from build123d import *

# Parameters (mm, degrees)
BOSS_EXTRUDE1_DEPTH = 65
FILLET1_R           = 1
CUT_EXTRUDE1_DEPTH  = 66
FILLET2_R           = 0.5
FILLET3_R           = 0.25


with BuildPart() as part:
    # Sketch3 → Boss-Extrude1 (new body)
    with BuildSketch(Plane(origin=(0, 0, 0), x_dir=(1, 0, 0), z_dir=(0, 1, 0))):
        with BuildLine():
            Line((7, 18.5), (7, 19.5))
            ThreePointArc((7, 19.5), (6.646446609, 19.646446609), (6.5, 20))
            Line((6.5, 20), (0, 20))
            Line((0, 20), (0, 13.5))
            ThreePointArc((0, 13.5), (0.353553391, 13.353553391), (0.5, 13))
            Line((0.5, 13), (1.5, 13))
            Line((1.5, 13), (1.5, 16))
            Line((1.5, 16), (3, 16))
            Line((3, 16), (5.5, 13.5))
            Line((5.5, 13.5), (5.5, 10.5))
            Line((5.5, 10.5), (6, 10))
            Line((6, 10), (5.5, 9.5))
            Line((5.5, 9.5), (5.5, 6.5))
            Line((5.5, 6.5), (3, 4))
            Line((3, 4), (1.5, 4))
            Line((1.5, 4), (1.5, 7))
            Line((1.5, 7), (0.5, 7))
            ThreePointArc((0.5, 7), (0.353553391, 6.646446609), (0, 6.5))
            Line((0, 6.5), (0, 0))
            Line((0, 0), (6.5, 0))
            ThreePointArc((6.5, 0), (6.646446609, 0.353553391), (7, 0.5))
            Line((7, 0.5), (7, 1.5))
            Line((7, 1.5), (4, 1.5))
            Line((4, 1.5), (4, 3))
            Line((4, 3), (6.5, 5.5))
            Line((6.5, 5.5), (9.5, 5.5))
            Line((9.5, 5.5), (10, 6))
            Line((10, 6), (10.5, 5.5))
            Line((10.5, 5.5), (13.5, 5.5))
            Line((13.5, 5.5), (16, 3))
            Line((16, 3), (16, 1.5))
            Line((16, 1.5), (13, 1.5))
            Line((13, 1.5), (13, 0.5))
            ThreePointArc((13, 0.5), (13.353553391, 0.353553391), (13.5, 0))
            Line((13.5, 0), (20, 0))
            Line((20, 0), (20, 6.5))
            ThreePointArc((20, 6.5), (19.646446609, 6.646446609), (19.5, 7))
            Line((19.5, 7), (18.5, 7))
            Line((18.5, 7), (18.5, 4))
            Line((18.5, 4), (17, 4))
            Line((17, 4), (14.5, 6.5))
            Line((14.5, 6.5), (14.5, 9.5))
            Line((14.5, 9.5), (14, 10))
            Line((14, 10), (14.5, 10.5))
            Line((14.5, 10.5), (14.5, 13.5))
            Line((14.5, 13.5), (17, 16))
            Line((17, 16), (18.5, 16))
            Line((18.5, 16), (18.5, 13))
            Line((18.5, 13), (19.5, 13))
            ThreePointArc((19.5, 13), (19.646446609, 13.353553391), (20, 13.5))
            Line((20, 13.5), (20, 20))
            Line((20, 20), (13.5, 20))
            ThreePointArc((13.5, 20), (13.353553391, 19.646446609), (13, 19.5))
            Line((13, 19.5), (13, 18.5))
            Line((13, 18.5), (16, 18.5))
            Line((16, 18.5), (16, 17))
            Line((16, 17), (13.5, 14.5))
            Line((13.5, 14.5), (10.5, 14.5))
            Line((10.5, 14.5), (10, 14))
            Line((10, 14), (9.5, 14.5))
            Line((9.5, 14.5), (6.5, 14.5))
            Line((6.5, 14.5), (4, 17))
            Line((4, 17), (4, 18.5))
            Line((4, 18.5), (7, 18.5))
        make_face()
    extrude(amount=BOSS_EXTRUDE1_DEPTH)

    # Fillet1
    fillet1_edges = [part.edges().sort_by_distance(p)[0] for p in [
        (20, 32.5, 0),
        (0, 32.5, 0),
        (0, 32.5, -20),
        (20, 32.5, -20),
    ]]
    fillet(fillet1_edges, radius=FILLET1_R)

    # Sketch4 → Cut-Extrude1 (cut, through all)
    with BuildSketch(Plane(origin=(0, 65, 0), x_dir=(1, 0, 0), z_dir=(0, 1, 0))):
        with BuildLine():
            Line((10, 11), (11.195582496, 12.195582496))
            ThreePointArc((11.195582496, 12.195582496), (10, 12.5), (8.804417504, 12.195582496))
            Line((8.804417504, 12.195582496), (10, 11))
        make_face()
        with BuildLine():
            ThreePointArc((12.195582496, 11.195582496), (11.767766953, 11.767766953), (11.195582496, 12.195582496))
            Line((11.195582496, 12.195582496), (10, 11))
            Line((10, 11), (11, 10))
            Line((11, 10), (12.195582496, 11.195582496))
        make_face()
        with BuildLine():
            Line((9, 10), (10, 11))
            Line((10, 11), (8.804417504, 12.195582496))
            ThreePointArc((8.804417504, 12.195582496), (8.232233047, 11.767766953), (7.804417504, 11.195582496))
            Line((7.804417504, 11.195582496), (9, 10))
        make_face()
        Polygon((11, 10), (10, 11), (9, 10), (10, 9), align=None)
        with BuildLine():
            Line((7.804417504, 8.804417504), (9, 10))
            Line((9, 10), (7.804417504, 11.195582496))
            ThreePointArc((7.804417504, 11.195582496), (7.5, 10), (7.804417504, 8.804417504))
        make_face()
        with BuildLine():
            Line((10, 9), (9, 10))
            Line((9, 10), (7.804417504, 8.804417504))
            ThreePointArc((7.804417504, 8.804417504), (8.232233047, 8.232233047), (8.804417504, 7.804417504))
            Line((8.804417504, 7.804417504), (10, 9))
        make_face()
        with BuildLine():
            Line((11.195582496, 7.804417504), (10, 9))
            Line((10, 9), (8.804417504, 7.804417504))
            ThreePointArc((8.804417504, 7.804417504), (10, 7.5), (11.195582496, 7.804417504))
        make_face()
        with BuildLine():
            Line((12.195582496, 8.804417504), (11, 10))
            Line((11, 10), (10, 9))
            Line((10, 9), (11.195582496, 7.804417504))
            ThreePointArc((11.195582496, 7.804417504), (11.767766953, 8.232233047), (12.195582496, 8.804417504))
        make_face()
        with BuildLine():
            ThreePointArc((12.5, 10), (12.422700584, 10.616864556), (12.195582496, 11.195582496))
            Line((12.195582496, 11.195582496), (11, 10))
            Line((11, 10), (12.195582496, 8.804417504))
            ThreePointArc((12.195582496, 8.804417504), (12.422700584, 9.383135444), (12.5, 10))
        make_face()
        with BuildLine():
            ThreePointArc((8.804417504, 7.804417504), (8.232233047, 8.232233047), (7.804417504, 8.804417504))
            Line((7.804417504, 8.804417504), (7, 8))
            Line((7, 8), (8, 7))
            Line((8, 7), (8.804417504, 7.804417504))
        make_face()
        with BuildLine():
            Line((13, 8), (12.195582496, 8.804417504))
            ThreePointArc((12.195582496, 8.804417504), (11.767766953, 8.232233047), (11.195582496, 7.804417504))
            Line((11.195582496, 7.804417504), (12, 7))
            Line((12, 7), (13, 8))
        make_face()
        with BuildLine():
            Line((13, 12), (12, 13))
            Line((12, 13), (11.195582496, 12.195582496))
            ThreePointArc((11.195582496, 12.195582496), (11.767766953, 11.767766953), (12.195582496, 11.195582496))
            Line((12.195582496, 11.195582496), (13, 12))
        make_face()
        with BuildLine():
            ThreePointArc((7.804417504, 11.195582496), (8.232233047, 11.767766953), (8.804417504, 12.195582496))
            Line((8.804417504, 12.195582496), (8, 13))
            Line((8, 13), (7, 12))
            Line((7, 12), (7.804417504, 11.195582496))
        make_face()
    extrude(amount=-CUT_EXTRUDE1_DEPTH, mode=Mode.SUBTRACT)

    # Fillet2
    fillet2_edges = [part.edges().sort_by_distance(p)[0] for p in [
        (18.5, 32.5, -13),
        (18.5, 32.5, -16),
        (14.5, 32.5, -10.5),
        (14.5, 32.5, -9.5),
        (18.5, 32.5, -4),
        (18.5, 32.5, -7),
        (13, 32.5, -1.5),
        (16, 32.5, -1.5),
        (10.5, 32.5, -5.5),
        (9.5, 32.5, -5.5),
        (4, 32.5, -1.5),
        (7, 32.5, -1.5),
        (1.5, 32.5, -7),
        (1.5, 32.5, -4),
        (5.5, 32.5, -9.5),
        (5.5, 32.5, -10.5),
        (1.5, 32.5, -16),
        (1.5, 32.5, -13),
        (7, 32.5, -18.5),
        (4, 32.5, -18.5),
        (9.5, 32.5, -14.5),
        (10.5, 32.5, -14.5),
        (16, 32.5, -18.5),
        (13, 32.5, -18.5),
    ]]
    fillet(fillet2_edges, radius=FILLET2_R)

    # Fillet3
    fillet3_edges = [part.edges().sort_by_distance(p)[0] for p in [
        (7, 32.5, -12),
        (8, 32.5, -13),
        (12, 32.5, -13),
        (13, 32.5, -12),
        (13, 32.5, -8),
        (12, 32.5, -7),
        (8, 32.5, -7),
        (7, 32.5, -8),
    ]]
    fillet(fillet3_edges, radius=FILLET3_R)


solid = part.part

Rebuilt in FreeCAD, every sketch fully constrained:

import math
import FreeCAD as App
import Part
import Sketcher
from FreeCAD import Vector


def edges_at(feature, points):
    """Names of the edges that pass closest to the given points."""
    edges = feature.Shape.Edges
    near = lambda p: min(range(len(edges)), key=lambda i: edges[i].distToShape(Part.Vertex(*p))[0])
    return sorted({f"Edge{near(p) + 1}" for p in points})

doc = App.newDocument("Part")
params = doc.addObject("Spreadsheet::Sheet", "Params")
for row, (alias, value) in enumerate([
    ("sketch1_radius", "0.5 mm"),
    ("sketch1_width", "1 mm"),
    ("sketch1_width2", "3 mm"),
    ("sketch1_width3", "6.5 mm"),
    ("sketch1_width4", "1.5 mm"),
    ("pad1_length", "65 mm"),
    ("fillet_radius", "1 mm"),
    ("sketch2_radius", "2.5 mm"),
    ("fillet2_radius", "0.5 mm"),
    ("fillet3_radius", "0.25 mm"),
], start=1):
    params.set(f"A{row}", alias)
    params.set(f"B{row}", "=" + value)
    params.setAlias(f"B{row}", alias)

body = doc.addObject("PartDesign::Body", "Body")

# Sketch on XZ plane
sketch1 = body.newObject("Sketcher::SketchObject", "Sketch")
sketch1.AttachmentSupport = (doc.getObject("XZ_Plane"), [""])
sketch1.MapMode = "FlatFace"
sketch1.addGeometry([
    Part.LineSegment(Vector(7, -18.5, 0), Vector(7, -19.5, 0)),  # 0
    Part.ArcOfCircle(Part.Circle(Vector(7, -20, 0), Vector(0, 0, 1), 0.5), math.radians(90), math.radians(180)),  # 1
    Part.LineSegment(Vector(6.5, -20, 0), Vector(0, -20, 0)),  # 2
    Part.LineSegment(Vector(0, -20, 0), Vector(0, -13.5, 0)),  # 3
    Part.ArcOfCircle(Part.Circle(Vector(0, -13, 0), Vector(0, 0, 1), 0.5), math.radians(-90), math.radians(0)),  # 4
    Part.LineSegment(Vector(0.5, -13, 0), Vector(1.5, -13, 0)),  # 5
    Part.LineSegment(Vector(1.5, -13, 0), Vector(1.5, -16, 0)),  # 6
    Part.LineSegment(Vector(1.5, -16, 0), Vector(3, -16, 0)),  # 7
    Part.LineSegment(Vector(3, -16, 0), Vector(5.5, -13.5, 0)),  # 8
    Part.LineSegment(Vector(5.5, -13.5, 0), Vector(5.5, -10.5, 0)),  # 9
    Part.LineSegment(Vector(5.5, -10.5, 0), Vector(6, -10, 0)),  # 10
    Part.LineSegment(Vector(6, -10, 0), Vector(5.5, -9.5, 0)),  # 11
    Part.LineSegment(Vector(5.5, -9.5, 0), Vector(5.5, -6.5, 0)),  # 12
    Part.LineSegment(Vector(5.5, -6.5, 0), Vector(3, -4, 0)),  # 13
    Part.LineSegment(Vector(3, -4, 0), Vector(1.5, -4, 0)),  # 14
    Part.LineSegment(Vector(1.5, -4, 0), Vector(1.5, -7, 0)),  # 15
    Part.LineSegment(Vector(1.5, -7, 0), Vector(0.5, -7, 0)),  # 16
    Part.ArcOfCircle(Part.Circle(Vector(0, -7, 0), Vector(0, 0, 1), 0.5), math.radians(0), math.radians(90)),  # 17
    Part.LineSegment(Vector(0, -6.5, 0), Vector(0, 0, 0)),  # 18
    Part.LineSegment(Vector(0, 0, 0), Vector(6.5, 0, 0)),  # 19
    Part.ArcOfCircle(Part.Circle(Vector(7, 0, 0), Vector(0, 0, 1), 0.5), math.radians(180), math.radians(270)),  # 20
    Part.LineSegment(Vector(7, -0.5, 0), Vector(7, -1.5, 0)),  # 21
    Part.LineSegment(Vector(7, -1.5, 0), Vector(4, -1.5, 0)),  # 22
    Part.LineSegment(Vector(4, -1.5, 0), Vector(4, -3, 0)),  # 23
    Part.LineSegment(Vector(4, -3, 0), Vector(6.5, -5.5, 0)),  # 24
    Part.LineSegment(Vector(6.5, -5.5, 0), Vector(9.5, -5.5, 0)),  # 25
    Part.LineSegment(Vector(9.5, -5.5, 0), Vector(10, -6, 0)),  # 26
    Part.LineSegment(Vector(10, -6, 0), Vector(10.5, -5.5, 0)),  # 27
    Part.LineSegment(Vector(10.5, -5.5, 0), Vector(13.5, -5.5, 0)),  # 28
    Part.LineSegment(Vector(13.5, -5.5, 0), Vector(16, -3, 0)),  # 29
    Part.LineSegment(Vector(16, -3, 0), Vector(16, -1.5, 0)),  # 30
    Part.LineSegment(Vector(16, -1.5, 0), Vector(13, -1.5, 0)),  # 31
    Part.LineSegment(Vector(13, -1.5, 0), Vector(13, -0.5, 0)),  # 32
    Part.ArcOfCircle(Part.Circle(Vector(13, 0, 0), Vector(0, 0, 1), 0.5), math.radians(-90), math.radians(0)),  # 33
    Part.LineSegment(Vector(13.5, 0, 0), Vector(20, 0, 0)),  # 34
    Part.LineSegment(Vector(20, 0, 0), Vector(20, -6.5, 0)),  # 35
    Part.ArcOfCircle(Part.Circle(Vector(20, -7, 0), Vector(0, 0, 1), 0.5), math.radians(90), math.radians(180)),  # 36
    Part.LineSegment(Vector(19.5, -7, 0), Vector(18.5, -7, 0)),  # 37
    Part.LineSegment(Vector(18.5, -7, 0), Vector(18.5, -4, 0)),  # 38
    Part.LineSegment(Vector(18.5, -4, 0), Vector(17, -4, 0)),  # 39
    Part.LineSegment(Vector(17, -4, 0), Vector(14.5, -6.5, 0)),  # 40
    Part.LineSegment(Vector(14.5, -6.5, 0), Vector(14.5, -9.5, 0)),  # 41
    Part.LineSegment(Vector(14.5, -9.5, 0), Vector(14, -10, 0)),  # 42
    Part.LineSegment(Vector(14, -10, 0), Vector(14.5, -10.5, 0)),  # 43
    Part.LineSegment(Vector(14.5, -10.5, 0), Vector(14.5, -13.5, 0)),  # 44
    Part.LineSegment(Vector(14.5, -13.5, 0), Vector(17, -16, 0)),  # 45
    Part.LineSegment(Vector(17, -16, 0), Vector(18.5, -16, 0)),  # 46
    Part.LineSegment(Vector(18.5, -16, 0), Vector(18.5, -13, 0)),  # 47
    Part.LineSegment(Vector(18.5, -13, 0), Vector(19.5, -13, 0)),  # 48
    Part.ArcOfCircle(Part.Circle(Vector(20, -13, 0), Vector(0, 0, 1), 0.5), math.radians(180), math.radians(270)),  # 49
    Part.LineSegment(Vector(20, -13.5, 0), Vector(20, -20, 0)),  # 50
    Part.LineSegment(Vector(20, -20, 0), Vector(13.5, -20, 0)),  # 51
    Part.ArcOfCircle(Part.Circle(Vector(13, -20, 0), Vector(0, 0, 1), 0.5), math.radians(0), math.radians(90)),  # 52
    Part.LineSegment(Vector(13, -19.5, 0), Vector(13, -18.5, 0)),  # 53
    Part.LineSegment(Vector(13, -18.5, 0), Vector(16, -18.5, 0)),  # 54
    Part.LineSegment(Vector(16, -18.5, 0), Vector(16, -17, 0)),  # 55
    Part.LineSegment(Vector(16, -17, 0), Vector(13.5, -14.5, 0)),  # 56
    Part.LineSegment(Vector(13.5, -14.5, 0), Vector(10.5, -14.5, 0)),  # 57
    Part.LineSegment(Vector(10.5, -14.5, 0), Vector(10, -14, 0)),  # 58
    Part.LineSegment(Vector(10, -14, 0), Vector(9.5, -14.5, 0)),  # 59
    Part.LineSegment(Vector(9.5, -14.5, 0), Vector(6.5, -14.5, 0)),  # 60
    Part.LineSegment(Vector(6.5, -14.5, 0), Vector(4, -17, 0)),  # 61
    Part.LineSegment(Vector(4, -17, 0), Vector(4, -18.5, 0)),  # 62
    Part.LineSegment(Vector(4, -18.5, 0), Vector(7, -18.5, 0)),  # 63
], False)
sketch1.addConstraint([
    Sketcher.Constraint("Coincident", 0, 2, 1, 1),
    Sketcher.Constraint("Coincident", 1, 2, 2, 1),
    Sketcher.Constraint("Coincident", 2, 2, 3, 1),
    Sketcher.Constraint("Coincident", 3, 2, 4, 1),
    Sketcher.Constraint("Coincident", 4, 2, 5, 1),
    Sketcher.Constraint("Coincident", 5, 2, 6, 1),
    Sketcher.Constraint("Coincident", 6, 2, 7, 1),
    Sketcher.Constraint("Coincident", 7, 2, 8, 1),
    Sketcher.Constraint("Coincident", 8, 2, 9, 1),
    Sketcher.Constraint("Coincident", 9, 2, 10, 1),
    Sketcher.Constraint("Coincident", 10, 2, 11, 1),
    Sketcher.Constraint("Coincident", 11, 2, 12, 1),
    Sketcher.Constraint("Coincident", 12, 2, 13, 1),
    Sketcher.Constraint("Coincident", 13, 2, 14, 1),
    Sketcher.Constraint("Coincident", 14, 2, 15, 1),
    Sketcher.Constraint("Coincident", 15, 2, 16, 1),
    Sketcher.Constraint("Coincident", 16, 2, 17, 1),
    Sketcher.Constraint("Coincident", 17, 2, 18, 1),
    Sketcher.Constraint("Coincident", 18, 2, 19, 1),
    Sketcher.Constraint("Coincident", 19, 2, 20, 1),
    Sketcher.Constraint("Coincident", 20, 2, 21, 1),
    Sketcher.Constraint("Coincident", 21, 2, 22, 1),
    Sketcher.Constraint("Coincident", 22, 2, 23, 1),
    Sketcher.Constraint("Coincident", 23, 2, 24, 1),
    Sketcher.Constraint("Coincident", 24, 2, 25, 1),
    Sketcher.Constraint("Coincident", 25, 2, 26, 1),
    Sketcher.Constraint("Coincident", 26, 2, 27, 1),
    Sketcher.Constraint("Coincident", 27, 2, 28, 1),
    Sketcher.Constraint("Coincident", 28, 2, 29, 1),
    Sketcher.Constraint("Coincident", 29, 2, 30, 1),
    Sketcher.Constraint("Coincident", 30, 2, 31, 1),
    Sketcher.Constraint("Coincident", 31, 2, 32, 1),
    Sketcher.Constraint("Coincident", 32, 2, 33, 1),
    Sketcher.Constraint("Coincident", 33, 2, 34, 1),
    Sketcher.Constraint("Coincident", 34, 2, 35, 1),
    Sketcher.Constraint("Coincident", 35, 2, 36, 1),
    Sketcher.Constraint("Coincident", 36, 2, 37, 1),
    Sketcher.Constraint("Coincident", 37, 2, 38, 1),
    Sketcher.Constraint("Coincident", 38, 2, 39, 1),
    Sketcher.Constraint("Coincident", 39, 2, 40, 1),
    Sketcher.Constraint("Coincident", 40, 2, 41, 1),
    Sketcher.Constraint("Coincident", 41, 2, 42, 1),
    Sketcher.Constraint("Coincident", 42, 2, 43, 1),
    Sketcher.Constraint("Coincident", 43, 2, 44, 1),
    Sketcher.Constraint("Coincident", 44, 2, 45, 1),
    Sketcher.Constraint("Coincident", 45, 2, 46, 1),
    Sketcher.Constraint("Coincident", 46, 2, 47, 1),
    Sketcher.Constraint("Coincident", 47, 2, 48, 1),
    Sketcher.Constraint("Coincident", 48, 2, 49, 1),
    Sketcher.Constraint("Coincident", 49, 2, 50, 1),
    Sketcher.Constraint("Coincident", 50, 2, 51, 1),
    Sketcher.Constraint("Coincident", 51, 2, 52, 1),
    Sketcher.Constraint("Coincident", 52, 2, 53, 1),
    Sketcher.Constraint("Coincident", 53, 2, 54, 1),
    Sketcher.Constraint("Coincident", 54, 2, 55, 1),
    Sketcher.Constraint("Coincident", 55, 2, 56, 1),
    Sketcher.Constraint("Coincident", 56, 2, 57, 1),
    Sketcher.Constraint("Coincident", 57, 2, 58, 1),
    Sketcher.Constraint("Coincident", 58, 2, 59, 1),
    Sketcher.Constraint("Coincident", 59, 2, 60, 1),
    Sketcher.Constraint("Coincident", 60, 2, 61, 1),
    Sketcher.Constraint("Coincident", 61, 2, 62, 1),
    Sketcher.Constraint("Coincident", 62, 2, 63, 1),
    Sketcher.Constraint("Coincident", 63, 2, 0, 1),
    Sketcher.Constraint("Vertical", 0),
    Sketcher.Constraint("Horizontal", 2),
    Sketcher.Constraint("Vertical", 3),
    Sketcher.Constraint("Horizontal", 5),
    Sketcher.Constraint("Vertical", 6),
    Sketcher.Constraint("Horizontal", 7),
    Sketcher.Constraint("Vertical", 9),
    Sketcher.Constraint("Vertical", 12),
    Sketcher.Constraint("Horizontal", 14),
    Sketcher.Constraint("Vertical", 15),
    Sketcher.Constraint("Horizontal", 16),
    Sketcher.Constraint("Vertical", 18),
    Sketcher.Constraint("Horizontal", 19),
    Sketcher.Constraint("Vertical", 21),
    Sketcher.Constraint("Horizontal", 22),
    Sketcher.Constraint("Vertical", 23),
    Sketcher.Constraint("Horizontal", 25),
    Sketcher.Constraint("Horizontal", 28),
    Sketcher.Constraint("Vertical", 30),
    Sketcher.Constraint("Horizontal", 31),
    Sketcher.Constraint("Vertical", 32),
    Sketcher.Constraint("Horizontal", 34),
    Sketcher.Constraint("Vertical", 35),
    Sketcher.Constraint("Horizontal", 37),
    Sketcher.Constraint("Vertical", 38),
    Sketcher.Constraint("Horizontal", 39),
    Sketcher.Constraint("Vertical", 41),
    Sketcher.Constraint("Vertical", 44),
    Sketcher.Constraint("Horizontal", 46),
    Sketcher.Constraint("Vertical", 47),
    Sketcher.Constraint("Horizontal", 48),
    Sketcher.Constraint("Vertical", 50),
    Sketcher.Constraint("Horizontal", 51),
    Sketcher.Constraint("Vertical", 53),
    Sketcher.Constraint("Horizontal", 54),
    Sketcher.Constraint("Vertical", 55),
    Sketcher.Constraint("Horizontal", 57),
    Sketcher.Constraint("Horizontal", 60),
    Sketcher.Constraint("Vertical", 62),
    Sketcher.Constraint("Horizontal", 63),
    Sketcher.Constraint("Coincident", 18, 2, -1, 1),
    Sketcher.Constraint("Equal", 1, 4),
    Sketcher.Constraint("Equal", 4, 17),
    Sketcher.Constraint("Equal", 17, 20),
    Sketcher.Constraint("Equal", 20, 33),
    Sketcher.Constraint("Equal", 33, 36),
    Sketcher.Constraint("Equal", 36, 49),
    Sketcher.Constraint("Equal", 49, 52),
    Sketcher.Constraint("PointOnObject", 4, 3, -2),
    Sketcher.Constraint("PointOnObject", 17, 3, -2),
    Sketcher.Constraint("PointOnObject", 20, 3, -1),
    Sketcher.Constraint("PointOnObject", 33, 3, -1),
    Sketcher.Constraint("PointOnObject", 2, 2, -2),
    Sketcher.Constraint("PointOnObject", 33, 2, -1),
    Sketcher.Constraint("Parallel", 8, 10),
    Sketcher.Constraint("Perpendicular", 10, 11),
    Sketcher.Constraint("Parallel", 11, 13),
    Sketcher.Constraint("Parallel", 13, 24),
    Sketcher.Constraint("Parallel", 24, 26),
    Sketcher.Constraint("Perpendicular", 26, 27),
    Sketcher.Constraint("Parallel", 27, 29),
    Sketcher.Constraint("Parallel", 29, 40),
    Sketcher.Constraint("Parallel", 40, 42),
    Sketcher.Constraint("Perpendicular", 42, 43),
    Sketcher.Constraint("Parallel", 43, 45),
    Sketcher.Constraint("Parallel", 45, 56),
    Sketcher.Constraint("Parallel", 56, 58),
    Sketcher.Constraint("Perpendicular", 58, 59),
    Sketcher.Constraint("Parallel", 59, 61),
    Sketcher.Constraint("Horizontal", 17, 3, 36, 3),
    Sketcher.Constraint("Horizontal", 4, 3, 49, 3),
    Sketcher.Constraint("Horizontal", 1, 3, 52, 3),
    Sketcher.Constraint("Horizontal", 52, 3, 1, 2),
    Sketcher.Constraint("Horizontal", 49, 3, 4, 2),
    Sketcher.Constraint("Horizontal", 3, 2, 8, 2),
    Sketcher.Constraint("Horizontal", 36, 3, 15, 2),
    Sketcher.Constraint("Horizontal", 12, 2, 17, 2),
    Sketcher.Constraint("Horizontal", 25, 2, 27, 2),
    Sketcher.Constraint("Horizontal", 23, 2, 29, 2),
    Sketcher.Constraint("Horizontal", 22, 2, 30, 2),
    Sketcher.Constraint("Horizontal", 16, 2, 36, 2),
    Sketcher.Constraint("Horizontal", 14, 2, 38, 2),
    Sketcher.Constraint("Horizontal", 35, 2, 40, 2),
    Sketcher.Constraint("Horizontal", 11, 2, 41, 2),
    Sketcher.Constraint("Horizontal", 10, 2, 42, 2),
    Sketcher.Constraint("Horizontal", 9, 2, 43, 2),
    Sketcher.Constraint("Horizontal", 8, 2, 44, 2),
    Sketcher.Constraint("Horizontal", 7, 2, 45, 2),
    Sketcher.Constraint("Horizontal", 5, 2, 47, 2),
    Sketcher.Constraint("Horizontal", 2, 2, 50, 2),
    Sketcher.Constraint("Horizontal", 57, 2, 59, 2),
    Sketcher.Constraint("Horizontal", 55, 2, 61, 2),
    Sketcher.Constraint("Horizontal", 54, 2, 62, 2),
    Sketcher.Constraint("Vertical", 1, 3, 20, 3),
    Sketcher.Constraint("Vertical", 36, 3, 49, 3),
    Sketcher.Constraint("Vertical", 33, 3, 52, 3),
    Sketcher.Constraint("Vertical", 20, 3, 0, 2),
    Sketcher.Constraint("Vertical", 9, 2, 11, 2),
    Sketcher.Constraint("Vertical", 7, 2, 13, 2),
    Sketcher.Constraint("Vertical", 6, 2, 14, 2),
    Sketcher.Constraint("Vertical", 0, 2, 20, 2),
    Sketcher.Constraint("Vertical", 19, 2, 24, 2),
    Sketcher.Constraint("Vertical", 52, 3, 31, 2),
    Sketcher.Constraint("Vertical", 28, 2, 33, 2),
    Sketcher.Constraint("Vertical", 49, 3, 34, 2),
    Sketcher.Constraint("Vertical", 41, 2, 43, 2),
    Sketcher.Constraint("Vertical", 38, 2, 46, 2),
    Sketcher.Constraint("Vertical", 35, 2, 49, 2),
    Sketcher.Constraint("Vertical", 32, 2, 52, 2),
    Sketcher.Constraint("Vertical", 30, 2, 54, 2),
    Sketcher.Constraint("Vertical", 51, 2, 56, 2),
    Sketcher.Constraint("Vertical", 27, 2, 57, 2),
    Sketcher.Constraint("Vertical", 26, 2, 58, 2),
    Sketcher.Constraint("Vertical", 24, 2, 60, 2),
    Sketcher.Constraint("Equal", 22, 25),
    Sketcher.Constraint("Equal", 25, 28),
    Sketcher.Constraint("Equal", 19, 34),
    Sketcher.Constraint("Equal", 16, 37),
    Sketcher.Constraint("Equal", 14, 39),
    Sketcher.Constraint("Equal", 48, 0),
    Sketcher.Constraint("Equal", 51, 3),
    Sketcher.Constraint("Equal", 63, 6),
    Sketcher.Constraint("Equal", 6, 9),
    Sketcher.Constraint("Equal", 9, 12),
    Sketcher.Constraint("Equal", 3, 18),
    Sketcher.Constraint("Equal", 0, 21),
    Sketcher.Constraint("Equal", 46, 23),
    Sketcher.Constraint("Equal", 30, 55),
    Sketcher.Constraint("Equal", 11, 26),
    Sketcher.Constraint("Radius", 1, 0.5),
    Sketcher.Constraint("DistanceX", 5, 1, 5, 2, 1.0),
    Sketcher.Constraint("DistanceX", 22, 2, 22, 1, 3.0),
    Sketcher.Constraint("DistanceX", 2, 2, 2, 1, 6.5),
    Sketcher.Constraint("DistanceX", 7, 1, 7, 2, 1.5),
    Sketcher.Constraint("DistanceY", 1, 3, -1, 1, 20.0),
])
sketch1.setExpression("Constraints[193]", "Params.sketch1_radius")
sketch1.setExpression("Constraints[194]", "Params.sketch1_width")
sketch1.setExpression("Constraints[195]", "Params.sketch1_width2")
sketch1.setExpression("Constraints[196]", "Params.sketch1_width3")
sketch1.setExpression("Constraints[197]", "Params.sketch1_width4")
pad1 = body.newObject("PartDesign::Pad", "Pad")
pad1.Profile = sketch1
pad1.setExpression("Length", "Params.pad1_length")
pad1.Reversed = True
doc.recompute()

fillet = body.newObject("PartDesign::Fillet", "Fillet")
fillet.Base = (pad1, edges_at(pad1, [
    (20, 32.5, 0),
    (0, 32.5, 0),
    (0, 32.5, -20),
    (20, 32.5, -20),
]))
fillet.setExpression("Radius", "Params.fillet_radius")

# Sketch on XZ plane
sketch2 = body.newObject("Sketcher::SketchObject", "Sketch001")
sketch2.AttachmentSupport = (doc.getObject("XZ_Plane"), [""])
sketch2.MapMode = "FlatFace"
sketch2.AttachmentOffset = App.Placement(Vector(0, 0, -65), App.Rotation())
sketch2.addGeometry([
    Part.ArcOfCircle(Part.Circle(Vector(10, -10, 0), Vector(0, 0, 1), 2.5), math.radians(-118.57006), math.radians(-61.42994)),  # 0
    Part.LineSegment(Vector(8.804418, -12.195582, 0), Vector(8, -13, 0)),  # 1
    Part.LineSegment(Vector(8, -13, 0), Vector(7, -12, 0)),  # 2
    Part.LineSegment(Vector(7, -12, 0), Vector(7.804418, -11.195582, 0)),  # 3
    Part.ArcOfCircle(Part.Circle(Vector(10, -10, 0), Vector(0, 0, 1), 2.5), math.radians(151.42994), math.radians(208.57006)),  # 4
    Part.LineSegment(Vector(7.804418, -8.804418, 0), Vector(7, -8, 0)),  # 5
    Part.LineSegment(Vector(7, -8, 0), Vector(8, -7, 0)),  # 6
    Part.LineSegment(Vector(8, -7, 0), Vector(8.804418, -7.804418, 0)),  # 7
    Part.ArcOfCircle(Part.Circle(Vector(10, -10, 0), Vector(0, 0, 1), 2.5), math.radians(61.42994), math.radians(118.57006)),  # 8
    Part.LineSegment(Vector(11.195582, -7.804418, 0), Vector(12, -7, 0)),  # 9
    Part.LineSegment(Vector(12, -7, 0), Vector(13, -8, 0)),  # 10
    Part.LineSegment(Vector(13, -8, 0), Vector(12.195582, -8.804418, 0)),  # 11
    Part.ArcOfCircle(Part.Circle(Vector(10, -10, 0), Vector(0, 0, 1), 2.5), math.radians(0), math.radians(28.57006)),  # 12
    Part.ArcOfCircle(Part.Circle(Vector(10, -10, 0), Vector(0, 0, 1), 2.5), math.radians(-28.57006), math.radians(0)),  # 13
    Part.LineSegment(Vector(12.195582, -11.195582, 0), Vector(13, -12, 0)),  # 14
    Part.LineSegment(Vector(13, -12, 0), Vector(12, -13, 0)),  # 15
    Part.LineSegment(Vector(12, -13, 0), Vector(11.195582, -12.195582, 0)),  # 16
], False)
sketch2.addConstraint([
    Sketcher.Constraint("Coincident", 0, 1, 1, 1),
    Sketcher.Constraint("Coincident", 1, 2, 2, 1),
    Sketcher.Constraint("Coincident", 2, 2, 3, 1),
    Sketcher.Constraint("Coincident", 3, 2, 4, 2),
    Sketcher.Constraint("Coincident", 4, 1, 5, 1),
    Sketcher.Constraint("Coincident", 5, 2, 6, 1),
    Sketcher.Constraint("Coincident", 6, 2, 7, 1),
    Sketcher.Constraint("Coincident", 7, 2, 8, 2),
    Sketcher.Constraint("Coincident", 8, 1, 9, 1),
    Sketcher.Constraint("Coincident", 9, 2, 10, 1),
    Sketcher.Constraint("Coincident", 10, 2, 11, 1),
    Sketcher.Constraint("Coincident", 11, 2, 12, 2),
    Sketcher.Constraint("Tangent", 12, 1, 13, 2),
    Sketcher.Constraint("Coincident", 13, 1, 14, 1),
    Sketcher.Constraint("Coincident", 14, 2, 15, 1),
    Sketcher.Constraint("Coincident", 15, 2, 16, 1),
    Sketcher.Constraint("Coincident", 16, 2, 0, 2),
    Sketcher.Constraint("Coincident", 4, 3, 0, 3),
    Sketcher.Constraint("Coincident", 8, 3, 0, 3),
    Sketcher.Constraint("Coincident", 12, 3, 0, 3),
    Sketcher.Constraint("Equal", 0, 4),
    Sketcher.Constraint("Equal", 4, 8),
    Sketcher.Constraint("Equal", 8, 12),
    Sketcher.Constraint("Equal", 12, 13),
    Sketcher.Constraint("Perpendicular", 1, 2),
    Sketcher.Constraint("Perpendicular", 2, 3),
    Sketcher.Constraint("Perpendicular", 3, 5),
    Sketcher.Constraint("Perpendicular", 5, 6),
    Sketcher.Constraint("Perpendicular", 6, 7),
    Sketcher.Constraint("Perpendicular", 7, 9),
    Sketcher.Constraint("Perpendicular", 9, 10),
    Sketcher.Constraint("Perpendicular", 10, 11),
    Sketcher.Constraint("Perpendicular", 11, 14),
    Sketcher.Constraint("Perpendicular", 14, 15),
    Sketcher.Constraint("Perpendicular", 15, 16),
    Sketcher.Constraint("Horizontal", 7, 2, 8, 1),
    Sketcher.Constraint("Horizontal", 6, 2, 9, 2),
    Sketcher.Constraint("Horizontal", 5, 2, 10, 2),
    Sketcher.Constraint("Horizontal", 4, 1, 11, 2),
    Sketcher.Constraint("Horizontal", 13, 3, 12, 1),
    Sketcher.Constraint("Horizontal", 3, 2, 13, 1),
    Sketcher.Constraint("Horizontal", 2, 2, 14, 2),
    Sketcher.Constraint("Horizontal", 1, 2, 15, 2),
    Sketcher.Constraint("Vertical", 3, 2, 4, 1),
    Sketcher.Constraint("Vertical", 2, 2, 5, 2),
    Sketcher.Constraint("Vertical", 1, 2, 6, 2),
    Sketcher.Constraint("Equal", 1, 3),
    Sketcher.Constraint("Radius", 0, 2.5),
    Sketcher.Constraint("DistanceX", -1, 1, 0, 3, 10.0),
    Sketcher.Constraint("DistanceY", 0, 3, -1, 1, 10.0),
    Sketcher.Constraint("DistanceX", -1, 1, 1, 2, 8.0),
    Sketcher.Constraint("DistanceY", 1, 2, -1, 1, 13.0),
])
sketch2.setExpression("Constraints[47]", "Params.sketch2_radius")
pocket1 = body.newObject("PartDesign::Pocket", "Pocket")
pocket1.Profile = sketch2
pocket1.Type = "ThroughAll"
pocket1.Reversed = True
doc.recompute()

fillet2 = body.newObject("PartDesign::Fillet", "Fillet001")
fillet2.Base = (pocket1, edges_at(pocket1, [
    (18.5, 32.5, -13),
    (18.5, 32.5, -16),
    (14.5, 32.5, -10.5),
    (14.5, 32.5, -9.5),
    (18.5, 32.5, -4),
    (18.5, 32.5, -7),
    (13, 32.5, -1.5),
    (16, 32.5, -1.5),
    (10.5, 32.5, -5.5),
    (9.5, 32.5, -5.5),
    (4, 32.5, -1.5),
    (7, 32.5, -1.5),
    (1.5, 32.5, -7),
    (1.5, 32.5, -4),
    (5.5, 32.5, -9.5),
    (5.5, 32.5, -10.5),
    (1.5, 32.5, -16),
    (1.5, 32.5, -13),
    (7, 32.5, -18.5),
    (4, 32.5, -18.5),
    (9.5, 32.5, -14.5),
    (10.5, 32.5, -14.5),
    (16, 32.5, -18.5),
    (13, 32.5, -18.5),
]))
fillet2.setExpression("Radius", "Params.fillet2_radius")
doc.recompute()

fillet3 = body.newObject("PartDesign::Fillet", "Fillet002")
fillet3.Base = (fillet2, edges_at(fillet2, [
    (7, 32.5, -12),
    (8, 32.5, -13),
    (12, 32.5, -13),
    (13, 32.5, -12),
    (13, 32.5, -8),
    (12, 32.5, -7),
    (8, 32.5, -7),
    (7, 32.5, -8),
]))
fillet3.setExpression("Radius", "Params.fillet3_radius")

doc.recompute()
